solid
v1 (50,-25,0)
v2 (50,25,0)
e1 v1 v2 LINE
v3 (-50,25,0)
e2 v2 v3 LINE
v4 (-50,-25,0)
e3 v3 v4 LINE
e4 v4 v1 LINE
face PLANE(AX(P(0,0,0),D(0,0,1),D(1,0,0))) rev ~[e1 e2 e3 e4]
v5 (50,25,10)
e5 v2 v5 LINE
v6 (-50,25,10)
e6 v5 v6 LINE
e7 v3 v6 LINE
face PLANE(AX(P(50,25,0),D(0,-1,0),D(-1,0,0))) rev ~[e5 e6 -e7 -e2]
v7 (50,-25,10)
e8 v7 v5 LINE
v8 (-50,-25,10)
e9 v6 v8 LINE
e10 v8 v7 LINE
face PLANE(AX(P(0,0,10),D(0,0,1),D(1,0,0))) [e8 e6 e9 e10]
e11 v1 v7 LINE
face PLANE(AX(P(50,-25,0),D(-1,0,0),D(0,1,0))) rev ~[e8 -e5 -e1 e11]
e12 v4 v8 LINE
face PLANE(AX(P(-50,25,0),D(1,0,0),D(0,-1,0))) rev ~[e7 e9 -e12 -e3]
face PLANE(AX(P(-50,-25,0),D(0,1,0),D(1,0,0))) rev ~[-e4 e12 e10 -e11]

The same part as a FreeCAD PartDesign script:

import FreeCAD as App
import Part
import Sketcher
from FreeCAD import Vector
Q = App.Units.Quantity


def add_polygon(sketch, points):
    """Adds a closed chain of lines whose ends are joined by coincident constraints."""
    first, n = sketch.GeometryCount, len(points)
    for a, b in zip(points, points[1:] + points[:1]):
        sketch.addGeometry(Part.LineSegment(App.Vector(*a, 0), App.Vector(*b, 0)), False)
    for i in range(n):
        sketch.addConstraint(Sketcher.Constraint("Coincident", first + i, 2, first + (i + 1) % n, 1))

doc = App.newDocument("Part")
body = doc.addObject("PartDesign::Body", "Body")

# Sketch on XY plane
sketch1 = doc.addObject("Sketcher::SketchObject", "Sketch")
body.addObject(sketch1)
sketch1.AttachmentSupport = (doc.XY_Plane, [""])
sketch1.MapMode = "FlatFace"
add_polygon(sketch1, [(-50, 25), (-50, -25), (50, -25), (50, 25)])  # lines 0-3
sketch1.addConstraint([
    Sketcher.Constraint("Vertical", 0),
    Sketcher.Constraint("Horizontal", 1),
    Sketcher.Constraint("Vertical", 2),
    Sketcher.Constraint("Horizontal", 3),
    Sketcher.Constraint("Symmetric", 0, 2, 2, 2, -1, 1),
    Sketcher.Constraint("DistanceY", 0, 2, 0, 1, Q("1.9685 in")),
    Sketcher.Constraint("DistanceX", 0, 2, -1, 1, Q("1.9685 in")),
])
pad1 = doc.addObject("PartDesign::Pad", "Pad")
body.addObject(pad1)
pad1.Profile = sketch1
pad1.Length = Q("0.3937008 in")

doc.recompute()
